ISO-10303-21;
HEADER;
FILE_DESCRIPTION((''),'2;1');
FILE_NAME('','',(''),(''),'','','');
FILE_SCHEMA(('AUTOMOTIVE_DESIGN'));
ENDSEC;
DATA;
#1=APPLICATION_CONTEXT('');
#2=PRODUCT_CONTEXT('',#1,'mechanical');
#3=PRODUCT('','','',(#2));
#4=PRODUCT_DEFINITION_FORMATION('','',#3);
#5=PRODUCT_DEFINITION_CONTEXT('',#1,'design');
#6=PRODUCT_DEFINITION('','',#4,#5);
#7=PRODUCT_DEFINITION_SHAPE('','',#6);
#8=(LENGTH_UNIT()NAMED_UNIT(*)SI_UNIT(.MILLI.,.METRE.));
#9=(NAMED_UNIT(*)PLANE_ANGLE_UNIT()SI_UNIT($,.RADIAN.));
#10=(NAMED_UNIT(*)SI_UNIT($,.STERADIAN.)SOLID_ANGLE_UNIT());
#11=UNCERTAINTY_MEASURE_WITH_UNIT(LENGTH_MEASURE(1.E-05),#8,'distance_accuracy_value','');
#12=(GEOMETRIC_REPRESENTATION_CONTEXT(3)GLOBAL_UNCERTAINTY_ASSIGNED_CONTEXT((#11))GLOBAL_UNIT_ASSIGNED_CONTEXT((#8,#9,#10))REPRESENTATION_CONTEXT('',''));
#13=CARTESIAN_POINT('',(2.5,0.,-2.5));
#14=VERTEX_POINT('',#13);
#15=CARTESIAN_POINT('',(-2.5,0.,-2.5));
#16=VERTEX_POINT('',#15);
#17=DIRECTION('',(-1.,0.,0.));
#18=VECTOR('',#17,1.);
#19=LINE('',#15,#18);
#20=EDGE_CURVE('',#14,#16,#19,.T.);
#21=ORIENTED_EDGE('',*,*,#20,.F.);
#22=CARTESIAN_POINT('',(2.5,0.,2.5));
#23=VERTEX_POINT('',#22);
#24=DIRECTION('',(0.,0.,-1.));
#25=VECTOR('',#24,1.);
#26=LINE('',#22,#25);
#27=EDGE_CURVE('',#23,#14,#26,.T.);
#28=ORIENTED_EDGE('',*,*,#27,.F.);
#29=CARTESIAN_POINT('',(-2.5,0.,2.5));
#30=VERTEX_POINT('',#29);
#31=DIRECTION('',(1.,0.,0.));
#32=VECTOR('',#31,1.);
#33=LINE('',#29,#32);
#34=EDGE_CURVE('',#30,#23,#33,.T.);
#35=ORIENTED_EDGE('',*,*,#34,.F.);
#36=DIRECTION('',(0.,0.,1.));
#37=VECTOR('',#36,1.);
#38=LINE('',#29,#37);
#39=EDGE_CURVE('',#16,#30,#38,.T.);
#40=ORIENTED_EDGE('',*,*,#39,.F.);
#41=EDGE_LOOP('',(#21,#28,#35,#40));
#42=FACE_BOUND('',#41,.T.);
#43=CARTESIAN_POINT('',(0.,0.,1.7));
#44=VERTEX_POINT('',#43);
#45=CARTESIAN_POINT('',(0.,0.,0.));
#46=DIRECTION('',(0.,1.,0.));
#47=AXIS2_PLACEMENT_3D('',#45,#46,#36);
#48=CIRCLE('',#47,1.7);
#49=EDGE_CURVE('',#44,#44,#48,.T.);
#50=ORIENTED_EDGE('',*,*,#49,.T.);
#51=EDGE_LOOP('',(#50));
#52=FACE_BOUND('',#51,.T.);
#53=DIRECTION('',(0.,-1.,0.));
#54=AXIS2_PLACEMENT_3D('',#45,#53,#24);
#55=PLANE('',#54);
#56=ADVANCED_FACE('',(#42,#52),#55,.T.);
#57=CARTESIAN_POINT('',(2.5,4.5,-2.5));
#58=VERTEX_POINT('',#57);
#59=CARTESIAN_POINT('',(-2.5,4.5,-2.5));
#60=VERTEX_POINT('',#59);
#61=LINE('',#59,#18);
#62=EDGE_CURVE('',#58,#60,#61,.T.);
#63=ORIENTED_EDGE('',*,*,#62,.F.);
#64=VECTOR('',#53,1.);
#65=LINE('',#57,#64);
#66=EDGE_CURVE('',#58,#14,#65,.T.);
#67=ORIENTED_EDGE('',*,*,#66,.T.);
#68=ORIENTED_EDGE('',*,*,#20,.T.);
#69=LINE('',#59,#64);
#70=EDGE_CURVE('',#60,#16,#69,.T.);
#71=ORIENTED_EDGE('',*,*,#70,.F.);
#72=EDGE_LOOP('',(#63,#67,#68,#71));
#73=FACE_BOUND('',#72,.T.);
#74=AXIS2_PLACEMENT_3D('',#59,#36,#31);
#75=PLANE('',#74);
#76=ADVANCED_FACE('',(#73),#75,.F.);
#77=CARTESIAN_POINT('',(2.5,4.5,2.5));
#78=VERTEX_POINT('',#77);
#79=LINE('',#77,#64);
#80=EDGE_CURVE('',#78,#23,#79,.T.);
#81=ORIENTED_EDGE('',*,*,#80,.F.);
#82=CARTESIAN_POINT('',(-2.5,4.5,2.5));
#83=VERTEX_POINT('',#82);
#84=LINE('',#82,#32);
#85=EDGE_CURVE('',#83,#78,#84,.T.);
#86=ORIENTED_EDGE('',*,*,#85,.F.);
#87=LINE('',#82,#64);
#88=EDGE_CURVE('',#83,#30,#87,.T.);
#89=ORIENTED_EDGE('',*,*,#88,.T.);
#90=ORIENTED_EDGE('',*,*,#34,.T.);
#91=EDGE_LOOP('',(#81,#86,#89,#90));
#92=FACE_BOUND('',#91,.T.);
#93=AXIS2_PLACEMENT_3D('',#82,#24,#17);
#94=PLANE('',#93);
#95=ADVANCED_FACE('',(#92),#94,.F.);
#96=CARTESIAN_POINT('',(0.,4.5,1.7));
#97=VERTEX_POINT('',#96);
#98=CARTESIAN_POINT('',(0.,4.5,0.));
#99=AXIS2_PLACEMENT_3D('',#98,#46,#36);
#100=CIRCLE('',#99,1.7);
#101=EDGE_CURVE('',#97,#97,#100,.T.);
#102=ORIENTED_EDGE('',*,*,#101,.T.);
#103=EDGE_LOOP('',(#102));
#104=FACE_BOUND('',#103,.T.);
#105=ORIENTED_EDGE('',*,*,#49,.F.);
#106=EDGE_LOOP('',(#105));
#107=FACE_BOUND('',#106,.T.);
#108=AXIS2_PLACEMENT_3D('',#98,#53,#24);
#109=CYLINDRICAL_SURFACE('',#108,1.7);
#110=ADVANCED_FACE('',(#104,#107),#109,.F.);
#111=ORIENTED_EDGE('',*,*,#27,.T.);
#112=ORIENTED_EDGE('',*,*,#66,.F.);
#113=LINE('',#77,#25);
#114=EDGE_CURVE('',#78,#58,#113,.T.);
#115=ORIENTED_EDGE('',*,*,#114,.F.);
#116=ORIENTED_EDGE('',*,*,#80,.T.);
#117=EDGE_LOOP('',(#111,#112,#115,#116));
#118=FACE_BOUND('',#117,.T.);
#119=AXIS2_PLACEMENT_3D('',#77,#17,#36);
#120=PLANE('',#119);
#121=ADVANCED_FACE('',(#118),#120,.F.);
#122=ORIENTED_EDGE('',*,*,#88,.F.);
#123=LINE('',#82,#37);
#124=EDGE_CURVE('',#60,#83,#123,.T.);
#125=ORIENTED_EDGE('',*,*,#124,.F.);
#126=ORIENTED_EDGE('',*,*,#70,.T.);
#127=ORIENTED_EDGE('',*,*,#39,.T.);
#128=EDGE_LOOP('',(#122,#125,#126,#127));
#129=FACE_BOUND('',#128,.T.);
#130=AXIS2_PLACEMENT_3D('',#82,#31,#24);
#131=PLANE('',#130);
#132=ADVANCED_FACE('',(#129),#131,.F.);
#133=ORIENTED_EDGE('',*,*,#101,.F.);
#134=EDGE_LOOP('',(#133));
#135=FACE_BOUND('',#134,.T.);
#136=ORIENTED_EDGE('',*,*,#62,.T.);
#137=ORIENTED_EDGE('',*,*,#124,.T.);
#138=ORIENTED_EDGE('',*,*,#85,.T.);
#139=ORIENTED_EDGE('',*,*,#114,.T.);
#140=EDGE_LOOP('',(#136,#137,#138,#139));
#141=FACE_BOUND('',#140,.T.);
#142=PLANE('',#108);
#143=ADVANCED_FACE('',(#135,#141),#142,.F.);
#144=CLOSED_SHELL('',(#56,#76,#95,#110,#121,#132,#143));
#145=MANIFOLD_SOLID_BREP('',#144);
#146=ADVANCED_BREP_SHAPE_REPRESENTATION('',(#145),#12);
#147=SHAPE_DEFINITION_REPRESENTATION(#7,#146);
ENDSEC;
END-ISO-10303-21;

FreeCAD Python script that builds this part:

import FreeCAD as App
import Part
import Sketcher

V = App.Vector
Q = App.Units.Quantity

doc = App.newDocument("Part")
body = doc.addObject("PartDesign::Body", "Body")

sketch1 = doc.addObject("Sketcher::SketchObject", "Sketch")
body.addObject(sketch1)
sketch1.AttachmentSupport = (doc.XZ_Plane, [""])
sketch1.MapMode = "FlatFace"
sketch1.addGeometry([
    Part.LineSegment(V(-2.5, -2.5, 0), V(-2.5, 2.5, 0)),
    Part.LineSegment(V(-2.5, 2.5, 0), V(2.5, 2.5, 0)),
    Part.LineSegment(V(2.5, 2.5, 0), V(2.5, -2.5, 0)),
    Part.LineSegment(V(2.5, -2.5, 0), V(-2.5, -2.5, 0)),
    Part.Circle(V(0, 0, 0), V(0, 0, 1), 1.7),
], False)
sketch1.addConstraint([
    Sketcher.Constraint("Coincident", 0, 2, 1, 1),
    Sketcher.Constraint("Coincident", 1, 2, 2, 1),
    Sketcher.Constraint("Coincident", 2, 2, 3, 1),
    Sketcher.Constraint("Coincident", 3, 2, 0, 1),
    Sketcher.Constraint("Vertical", 0),
    Sketcher.Constraint("Horizontal", 1),
    Sketcher.Constraint("Vertical", 2),
    Sketcher.Constraint("Horizontal", 3),
    Sketcher.Constraint("Coincident", 4, 3, -1, 1),
    Sketcher.Constraint("Symmetric", 0, 2, 2, 2, -1, 1),
    Sketcher.Constraint("Equal", 3, 0),
    Sketcher.Constraint("Diameter", 4, Q("3.4 mm")),
    Sketcher.Constraint("DistanceX", 1, 1, 1, 2, Q("5 mm")),
])
pad1 = doc.addObject("PartDesign::Pad", "Pad")
body.addObject(pad1)
pad1.Profile = sketch1
pad1.Length = 4.5
pad1.Reversed = True

doc.recompute()
